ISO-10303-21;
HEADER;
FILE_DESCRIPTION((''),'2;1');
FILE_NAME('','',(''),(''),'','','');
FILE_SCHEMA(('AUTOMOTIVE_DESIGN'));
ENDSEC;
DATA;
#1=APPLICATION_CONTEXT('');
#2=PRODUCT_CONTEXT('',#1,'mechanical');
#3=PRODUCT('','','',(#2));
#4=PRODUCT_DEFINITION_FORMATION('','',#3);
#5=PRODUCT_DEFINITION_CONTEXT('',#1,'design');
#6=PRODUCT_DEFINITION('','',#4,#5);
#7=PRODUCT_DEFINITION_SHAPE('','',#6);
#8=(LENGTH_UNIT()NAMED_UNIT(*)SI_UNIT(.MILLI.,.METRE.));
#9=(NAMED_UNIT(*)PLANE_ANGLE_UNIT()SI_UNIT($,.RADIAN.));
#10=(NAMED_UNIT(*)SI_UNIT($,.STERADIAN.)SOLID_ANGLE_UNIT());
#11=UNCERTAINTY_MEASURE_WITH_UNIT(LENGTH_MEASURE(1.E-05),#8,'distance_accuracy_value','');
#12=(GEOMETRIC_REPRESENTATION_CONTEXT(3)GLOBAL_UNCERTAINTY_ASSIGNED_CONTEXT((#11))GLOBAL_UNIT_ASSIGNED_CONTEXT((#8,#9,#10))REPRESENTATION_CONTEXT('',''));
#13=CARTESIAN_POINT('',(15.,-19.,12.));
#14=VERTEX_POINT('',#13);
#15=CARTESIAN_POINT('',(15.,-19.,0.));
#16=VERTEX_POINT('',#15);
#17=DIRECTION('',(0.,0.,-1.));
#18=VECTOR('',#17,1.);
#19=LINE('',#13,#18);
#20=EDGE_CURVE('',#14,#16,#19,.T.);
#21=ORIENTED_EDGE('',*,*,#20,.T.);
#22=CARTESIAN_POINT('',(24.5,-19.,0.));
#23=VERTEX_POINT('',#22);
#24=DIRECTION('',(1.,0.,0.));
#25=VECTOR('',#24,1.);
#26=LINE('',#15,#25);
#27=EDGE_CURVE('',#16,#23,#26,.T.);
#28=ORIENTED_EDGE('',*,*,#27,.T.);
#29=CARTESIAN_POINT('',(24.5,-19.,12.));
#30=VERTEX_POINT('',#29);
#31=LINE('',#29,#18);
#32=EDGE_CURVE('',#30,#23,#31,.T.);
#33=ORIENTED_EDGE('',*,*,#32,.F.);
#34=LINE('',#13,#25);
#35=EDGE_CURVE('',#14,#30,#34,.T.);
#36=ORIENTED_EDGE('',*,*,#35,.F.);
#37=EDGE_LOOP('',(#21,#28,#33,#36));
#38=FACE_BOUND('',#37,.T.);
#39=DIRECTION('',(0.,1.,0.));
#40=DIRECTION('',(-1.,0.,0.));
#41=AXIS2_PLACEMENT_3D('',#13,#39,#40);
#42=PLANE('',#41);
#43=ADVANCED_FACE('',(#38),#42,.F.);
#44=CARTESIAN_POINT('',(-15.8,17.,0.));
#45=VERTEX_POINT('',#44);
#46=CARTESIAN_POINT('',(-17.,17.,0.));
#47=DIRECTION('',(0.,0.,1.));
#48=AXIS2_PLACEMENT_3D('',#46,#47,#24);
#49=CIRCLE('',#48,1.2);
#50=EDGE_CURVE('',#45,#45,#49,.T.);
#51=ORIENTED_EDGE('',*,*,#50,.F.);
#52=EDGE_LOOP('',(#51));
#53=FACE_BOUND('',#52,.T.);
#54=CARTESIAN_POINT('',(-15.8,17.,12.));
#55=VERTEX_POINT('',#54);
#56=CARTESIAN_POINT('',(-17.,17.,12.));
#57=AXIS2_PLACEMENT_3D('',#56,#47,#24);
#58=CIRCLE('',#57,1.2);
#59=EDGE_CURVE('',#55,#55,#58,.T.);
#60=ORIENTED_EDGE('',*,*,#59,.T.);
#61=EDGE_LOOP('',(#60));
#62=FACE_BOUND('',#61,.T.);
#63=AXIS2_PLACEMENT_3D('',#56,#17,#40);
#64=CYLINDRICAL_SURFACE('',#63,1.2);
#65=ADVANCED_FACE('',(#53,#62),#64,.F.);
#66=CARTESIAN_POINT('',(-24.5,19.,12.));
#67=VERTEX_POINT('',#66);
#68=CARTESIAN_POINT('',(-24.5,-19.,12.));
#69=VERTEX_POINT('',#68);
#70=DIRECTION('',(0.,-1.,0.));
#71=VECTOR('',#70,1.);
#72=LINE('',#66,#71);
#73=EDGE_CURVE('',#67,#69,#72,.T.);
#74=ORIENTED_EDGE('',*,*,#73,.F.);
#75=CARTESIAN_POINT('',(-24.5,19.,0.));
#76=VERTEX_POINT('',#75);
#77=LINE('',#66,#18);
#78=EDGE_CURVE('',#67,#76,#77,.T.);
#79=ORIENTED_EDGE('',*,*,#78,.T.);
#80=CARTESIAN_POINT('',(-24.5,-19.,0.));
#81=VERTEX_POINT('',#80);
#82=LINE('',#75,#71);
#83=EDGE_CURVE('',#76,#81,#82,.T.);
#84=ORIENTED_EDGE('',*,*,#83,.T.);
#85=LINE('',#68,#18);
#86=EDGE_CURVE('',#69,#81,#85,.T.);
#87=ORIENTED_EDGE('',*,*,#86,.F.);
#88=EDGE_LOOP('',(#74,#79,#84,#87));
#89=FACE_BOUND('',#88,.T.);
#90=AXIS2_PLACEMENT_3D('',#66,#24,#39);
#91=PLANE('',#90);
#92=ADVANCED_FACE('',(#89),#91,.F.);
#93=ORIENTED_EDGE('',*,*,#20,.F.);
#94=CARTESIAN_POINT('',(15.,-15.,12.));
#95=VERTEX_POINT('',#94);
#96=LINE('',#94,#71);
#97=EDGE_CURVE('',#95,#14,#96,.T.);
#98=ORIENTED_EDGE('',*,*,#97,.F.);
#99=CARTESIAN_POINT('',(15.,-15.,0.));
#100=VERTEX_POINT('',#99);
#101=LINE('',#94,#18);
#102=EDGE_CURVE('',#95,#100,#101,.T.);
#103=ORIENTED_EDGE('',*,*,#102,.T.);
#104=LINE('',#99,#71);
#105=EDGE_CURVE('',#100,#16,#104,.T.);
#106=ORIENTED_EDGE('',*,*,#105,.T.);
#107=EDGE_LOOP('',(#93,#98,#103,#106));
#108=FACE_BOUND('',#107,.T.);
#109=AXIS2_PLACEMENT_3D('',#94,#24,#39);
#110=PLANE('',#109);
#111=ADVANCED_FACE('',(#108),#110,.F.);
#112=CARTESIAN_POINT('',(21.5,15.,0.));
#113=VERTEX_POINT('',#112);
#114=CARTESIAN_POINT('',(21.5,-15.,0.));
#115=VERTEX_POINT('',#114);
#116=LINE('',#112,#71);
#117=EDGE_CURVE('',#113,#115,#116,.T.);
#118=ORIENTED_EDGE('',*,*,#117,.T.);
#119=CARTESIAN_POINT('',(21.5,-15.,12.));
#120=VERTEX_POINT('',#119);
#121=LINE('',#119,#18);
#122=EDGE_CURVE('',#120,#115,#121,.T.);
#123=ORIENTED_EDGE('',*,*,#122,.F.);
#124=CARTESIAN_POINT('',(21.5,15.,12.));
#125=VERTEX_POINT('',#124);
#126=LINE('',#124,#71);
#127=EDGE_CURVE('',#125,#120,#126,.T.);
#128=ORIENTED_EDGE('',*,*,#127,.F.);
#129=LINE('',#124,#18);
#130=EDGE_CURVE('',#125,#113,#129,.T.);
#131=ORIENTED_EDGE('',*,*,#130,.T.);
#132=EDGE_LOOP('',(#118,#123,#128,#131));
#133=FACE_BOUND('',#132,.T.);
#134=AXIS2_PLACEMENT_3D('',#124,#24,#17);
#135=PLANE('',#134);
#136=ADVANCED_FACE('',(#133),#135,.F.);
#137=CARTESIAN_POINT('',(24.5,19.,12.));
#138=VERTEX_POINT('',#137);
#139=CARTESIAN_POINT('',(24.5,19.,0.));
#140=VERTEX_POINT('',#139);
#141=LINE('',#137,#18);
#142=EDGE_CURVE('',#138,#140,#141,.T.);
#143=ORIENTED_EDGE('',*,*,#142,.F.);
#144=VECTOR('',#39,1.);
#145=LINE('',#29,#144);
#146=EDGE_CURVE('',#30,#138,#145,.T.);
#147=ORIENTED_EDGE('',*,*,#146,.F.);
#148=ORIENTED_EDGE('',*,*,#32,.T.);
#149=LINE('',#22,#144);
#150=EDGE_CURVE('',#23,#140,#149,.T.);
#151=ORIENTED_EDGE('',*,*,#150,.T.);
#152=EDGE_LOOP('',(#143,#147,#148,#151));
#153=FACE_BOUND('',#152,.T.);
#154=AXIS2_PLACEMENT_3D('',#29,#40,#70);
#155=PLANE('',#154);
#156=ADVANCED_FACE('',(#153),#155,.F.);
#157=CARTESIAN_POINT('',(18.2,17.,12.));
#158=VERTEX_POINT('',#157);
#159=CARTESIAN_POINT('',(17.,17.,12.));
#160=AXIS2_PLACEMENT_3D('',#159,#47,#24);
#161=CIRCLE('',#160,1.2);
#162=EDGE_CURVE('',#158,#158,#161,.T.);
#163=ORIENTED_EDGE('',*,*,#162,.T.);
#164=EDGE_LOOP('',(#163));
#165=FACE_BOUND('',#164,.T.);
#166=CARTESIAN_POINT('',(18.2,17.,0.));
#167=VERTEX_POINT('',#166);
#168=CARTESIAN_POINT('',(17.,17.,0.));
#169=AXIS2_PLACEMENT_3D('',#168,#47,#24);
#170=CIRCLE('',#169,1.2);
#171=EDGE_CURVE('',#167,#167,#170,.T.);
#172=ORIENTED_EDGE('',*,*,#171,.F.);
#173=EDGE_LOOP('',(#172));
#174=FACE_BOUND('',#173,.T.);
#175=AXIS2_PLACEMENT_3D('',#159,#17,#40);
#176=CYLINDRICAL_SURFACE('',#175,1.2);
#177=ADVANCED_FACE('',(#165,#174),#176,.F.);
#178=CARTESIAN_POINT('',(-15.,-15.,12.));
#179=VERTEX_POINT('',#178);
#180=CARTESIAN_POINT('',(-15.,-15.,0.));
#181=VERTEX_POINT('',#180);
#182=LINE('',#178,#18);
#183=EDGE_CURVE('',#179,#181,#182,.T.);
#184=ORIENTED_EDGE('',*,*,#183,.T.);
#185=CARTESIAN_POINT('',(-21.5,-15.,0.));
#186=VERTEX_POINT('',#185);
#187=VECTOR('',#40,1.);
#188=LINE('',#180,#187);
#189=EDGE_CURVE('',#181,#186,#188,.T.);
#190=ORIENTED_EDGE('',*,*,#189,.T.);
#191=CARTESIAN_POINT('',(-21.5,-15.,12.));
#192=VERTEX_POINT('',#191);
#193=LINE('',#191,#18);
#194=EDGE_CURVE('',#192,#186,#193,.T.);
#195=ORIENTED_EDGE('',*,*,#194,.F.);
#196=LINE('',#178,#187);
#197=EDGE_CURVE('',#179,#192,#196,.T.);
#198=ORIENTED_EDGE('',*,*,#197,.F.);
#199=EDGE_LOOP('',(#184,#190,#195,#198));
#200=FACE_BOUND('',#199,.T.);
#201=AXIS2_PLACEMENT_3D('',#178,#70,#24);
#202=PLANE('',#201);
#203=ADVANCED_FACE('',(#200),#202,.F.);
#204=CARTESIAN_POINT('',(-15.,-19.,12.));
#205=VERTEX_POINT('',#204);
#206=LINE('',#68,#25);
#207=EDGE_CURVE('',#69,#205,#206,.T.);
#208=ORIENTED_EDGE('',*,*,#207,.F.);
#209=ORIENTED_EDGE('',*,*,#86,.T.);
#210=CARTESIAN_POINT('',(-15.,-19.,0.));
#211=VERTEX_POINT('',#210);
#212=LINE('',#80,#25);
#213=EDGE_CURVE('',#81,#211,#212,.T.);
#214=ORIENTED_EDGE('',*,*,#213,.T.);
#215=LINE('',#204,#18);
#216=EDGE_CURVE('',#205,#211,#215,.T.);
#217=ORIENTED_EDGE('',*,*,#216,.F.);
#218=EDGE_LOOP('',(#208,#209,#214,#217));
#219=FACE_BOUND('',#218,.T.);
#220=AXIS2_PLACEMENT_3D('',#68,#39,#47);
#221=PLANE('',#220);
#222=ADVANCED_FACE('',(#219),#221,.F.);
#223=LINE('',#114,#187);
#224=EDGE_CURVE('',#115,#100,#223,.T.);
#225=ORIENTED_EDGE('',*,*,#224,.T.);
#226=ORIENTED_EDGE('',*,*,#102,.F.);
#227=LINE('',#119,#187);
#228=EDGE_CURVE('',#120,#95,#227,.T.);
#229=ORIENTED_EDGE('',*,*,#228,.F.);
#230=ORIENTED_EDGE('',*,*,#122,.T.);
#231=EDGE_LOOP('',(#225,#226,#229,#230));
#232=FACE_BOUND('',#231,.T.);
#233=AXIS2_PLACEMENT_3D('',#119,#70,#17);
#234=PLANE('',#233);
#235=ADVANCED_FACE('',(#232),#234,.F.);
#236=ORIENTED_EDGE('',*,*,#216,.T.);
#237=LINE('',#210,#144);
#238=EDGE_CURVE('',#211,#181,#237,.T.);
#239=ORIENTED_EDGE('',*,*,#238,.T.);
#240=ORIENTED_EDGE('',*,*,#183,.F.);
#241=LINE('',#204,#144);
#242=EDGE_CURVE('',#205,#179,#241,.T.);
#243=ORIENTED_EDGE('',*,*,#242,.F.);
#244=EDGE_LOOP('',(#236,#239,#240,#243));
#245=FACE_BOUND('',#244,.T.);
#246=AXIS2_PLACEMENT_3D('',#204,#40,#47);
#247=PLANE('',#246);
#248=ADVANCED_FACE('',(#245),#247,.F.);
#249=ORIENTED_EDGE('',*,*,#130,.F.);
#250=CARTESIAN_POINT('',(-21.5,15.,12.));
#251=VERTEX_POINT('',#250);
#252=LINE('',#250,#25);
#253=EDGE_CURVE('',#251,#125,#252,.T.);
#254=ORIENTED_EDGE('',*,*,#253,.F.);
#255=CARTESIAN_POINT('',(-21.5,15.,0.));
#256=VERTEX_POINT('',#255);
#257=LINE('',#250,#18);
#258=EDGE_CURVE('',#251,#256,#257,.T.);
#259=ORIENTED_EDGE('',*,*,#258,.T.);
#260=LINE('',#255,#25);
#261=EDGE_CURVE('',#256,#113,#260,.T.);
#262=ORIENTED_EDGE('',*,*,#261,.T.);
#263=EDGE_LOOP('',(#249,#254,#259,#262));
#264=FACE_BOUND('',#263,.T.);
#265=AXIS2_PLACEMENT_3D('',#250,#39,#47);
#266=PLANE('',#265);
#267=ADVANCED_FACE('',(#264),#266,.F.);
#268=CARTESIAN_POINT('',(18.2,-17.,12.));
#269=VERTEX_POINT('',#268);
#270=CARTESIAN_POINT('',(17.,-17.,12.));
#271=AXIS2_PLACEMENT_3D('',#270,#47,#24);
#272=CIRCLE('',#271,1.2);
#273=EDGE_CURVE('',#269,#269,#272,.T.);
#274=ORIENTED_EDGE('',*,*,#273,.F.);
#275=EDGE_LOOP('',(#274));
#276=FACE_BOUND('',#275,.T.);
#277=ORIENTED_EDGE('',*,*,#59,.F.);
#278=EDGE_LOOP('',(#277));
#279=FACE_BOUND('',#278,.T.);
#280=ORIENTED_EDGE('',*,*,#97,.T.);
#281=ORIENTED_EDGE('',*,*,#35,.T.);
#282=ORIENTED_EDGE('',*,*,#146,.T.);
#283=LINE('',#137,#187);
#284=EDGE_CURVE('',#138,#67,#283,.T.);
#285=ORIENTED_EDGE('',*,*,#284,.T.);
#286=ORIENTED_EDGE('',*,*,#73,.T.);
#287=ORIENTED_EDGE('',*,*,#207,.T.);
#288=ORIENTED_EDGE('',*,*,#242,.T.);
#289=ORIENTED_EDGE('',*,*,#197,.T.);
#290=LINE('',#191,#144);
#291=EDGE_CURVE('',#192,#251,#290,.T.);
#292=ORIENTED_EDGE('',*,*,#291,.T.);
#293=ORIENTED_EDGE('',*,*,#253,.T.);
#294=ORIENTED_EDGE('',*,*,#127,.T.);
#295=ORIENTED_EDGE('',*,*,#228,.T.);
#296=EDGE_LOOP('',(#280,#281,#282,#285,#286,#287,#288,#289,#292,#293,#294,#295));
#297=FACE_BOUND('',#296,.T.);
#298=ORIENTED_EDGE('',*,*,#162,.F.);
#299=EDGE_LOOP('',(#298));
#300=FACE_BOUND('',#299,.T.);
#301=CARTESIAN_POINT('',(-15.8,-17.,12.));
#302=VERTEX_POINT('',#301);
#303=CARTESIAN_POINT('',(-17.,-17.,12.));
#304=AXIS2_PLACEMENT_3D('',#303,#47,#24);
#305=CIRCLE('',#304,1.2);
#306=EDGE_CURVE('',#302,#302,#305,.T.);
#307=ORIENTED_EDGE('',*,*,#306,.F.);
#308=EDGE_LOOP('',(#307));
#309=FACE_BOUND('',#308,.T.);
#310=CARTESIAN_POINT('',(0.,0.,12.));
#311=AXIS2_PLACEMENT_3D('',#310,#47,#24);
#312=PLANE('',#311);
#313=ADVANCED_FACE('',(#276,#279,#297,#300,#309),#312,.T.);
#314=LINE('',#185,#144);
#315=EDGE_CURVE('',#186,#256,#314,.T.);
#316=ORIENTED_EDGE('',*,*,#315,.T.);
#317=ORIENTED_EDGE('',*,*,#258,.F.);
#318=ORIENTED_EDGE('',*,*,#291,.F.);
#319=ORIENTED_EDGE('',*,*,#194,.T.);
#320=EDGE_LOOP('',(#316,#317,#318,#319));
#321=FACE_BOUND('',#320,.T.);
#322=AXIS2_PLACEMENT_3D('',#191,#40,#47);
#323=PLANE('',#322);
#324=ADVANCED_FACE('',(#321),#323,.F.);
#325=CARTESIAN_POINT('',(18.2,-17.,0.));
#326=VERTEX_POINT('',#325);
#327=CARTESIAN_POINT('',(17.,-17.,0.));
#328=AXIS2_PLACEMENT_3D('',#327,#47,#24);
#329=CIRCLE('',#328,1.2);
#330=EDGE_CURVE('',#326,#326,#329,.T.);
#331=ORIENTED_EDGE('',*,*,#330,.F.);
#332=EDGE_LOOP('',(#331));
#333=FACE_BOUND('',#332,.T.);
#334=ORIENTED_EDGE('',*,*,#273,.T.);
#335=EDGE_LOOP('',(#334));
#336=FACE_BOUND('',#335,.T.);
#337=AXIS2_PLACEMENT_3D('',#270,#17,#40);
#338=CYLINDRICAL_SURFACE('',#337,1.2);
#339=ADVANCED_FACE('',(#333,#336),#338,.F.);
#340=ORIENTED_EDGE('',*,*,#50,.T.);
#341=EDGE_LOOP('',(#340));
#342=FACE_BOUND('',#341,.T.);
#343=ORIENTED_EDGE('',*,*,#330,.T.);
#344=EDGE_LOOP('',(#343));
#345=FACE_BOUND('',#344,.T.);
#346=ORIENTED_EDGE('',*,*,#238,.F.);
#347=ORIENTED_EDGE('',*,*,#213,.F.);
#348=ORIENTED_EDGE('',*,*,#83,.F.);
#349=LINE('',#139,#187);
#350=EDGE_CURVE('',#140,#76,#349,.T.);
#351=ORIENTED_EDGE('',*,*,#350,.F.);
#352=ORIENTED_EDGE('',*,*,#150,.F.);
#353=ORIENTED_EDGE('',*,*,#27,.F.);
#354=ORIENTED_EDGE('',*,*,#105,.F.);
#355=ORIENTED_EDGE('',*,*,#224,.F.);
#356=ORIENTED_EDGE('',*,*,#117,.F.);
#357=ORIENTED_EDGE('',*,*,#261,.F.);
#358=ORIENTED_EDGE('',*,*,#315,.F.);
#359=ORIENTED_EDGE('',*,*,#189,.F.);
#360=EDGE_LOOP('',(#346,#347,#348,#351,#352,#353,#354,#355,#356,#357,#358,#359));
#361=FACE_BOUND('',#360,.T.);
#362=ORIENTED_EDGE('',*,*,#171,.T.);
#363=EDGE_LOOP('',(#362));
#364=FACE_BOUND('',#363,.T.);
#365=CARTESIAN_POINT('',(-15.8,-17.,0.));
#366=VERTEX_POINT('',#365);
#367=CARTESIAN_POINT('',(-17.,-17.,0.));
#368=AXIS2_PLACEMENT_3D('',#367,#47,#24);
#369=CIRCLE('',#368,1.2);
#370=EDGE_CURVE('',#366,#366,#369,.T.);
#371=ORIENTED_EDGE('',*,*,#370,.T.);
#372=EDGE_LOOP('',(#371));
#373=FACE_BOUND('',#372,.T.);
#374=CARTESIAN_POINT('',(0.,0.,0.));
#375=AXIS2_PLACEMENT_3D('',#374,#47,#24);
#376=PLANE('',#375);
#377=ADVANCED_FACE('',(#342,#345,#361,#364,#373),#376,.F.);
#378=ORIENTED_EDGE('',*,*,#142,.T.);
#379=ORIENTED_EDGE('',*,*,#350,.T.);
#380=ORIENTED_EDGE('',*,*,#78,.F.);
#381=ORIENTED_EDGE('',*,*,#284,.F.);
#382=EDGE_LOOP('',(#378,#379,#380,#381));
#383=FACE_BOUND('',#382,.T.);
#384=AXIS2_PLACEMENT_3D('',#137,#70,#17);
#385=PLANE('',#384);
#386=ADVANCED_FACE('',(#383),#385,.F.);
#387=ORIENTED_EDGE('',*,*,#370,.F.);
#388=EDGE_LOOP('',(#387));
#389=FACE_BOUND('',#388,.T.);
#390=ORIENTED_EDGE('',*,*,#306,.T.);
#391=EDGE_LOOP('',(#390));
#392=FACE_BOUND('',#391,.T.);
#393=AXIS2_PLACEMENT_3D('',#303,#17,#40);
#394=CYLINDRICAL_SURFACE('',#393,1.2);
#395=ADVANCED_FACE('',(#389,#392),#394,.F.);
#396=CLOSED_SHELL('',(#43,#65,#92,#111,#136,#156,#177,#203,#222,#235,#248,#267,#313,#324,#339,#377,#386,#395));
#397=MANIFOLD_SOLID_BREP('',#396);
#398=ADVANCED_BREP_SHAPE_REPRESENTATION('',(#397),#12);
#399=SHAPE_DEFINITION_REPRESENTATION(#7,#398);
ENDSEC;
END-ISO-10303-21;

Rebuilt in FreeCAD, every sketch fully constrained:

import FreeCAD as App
import Part
import Sketcher


def add_polygon(sketch, points):
    """Adds a closed chain of lines whose ends are joined by coincident constraints."""
    first, n = sketch.GeometryCount, len(points)
    for a, b in zip(points, points[1:] + points[:1]):
        sketch.addGeometry(Part.LineSegment(App.Vector(*a, 0), App.Vector(*b, 0)), False)
    for i in range(n):
        sketch.addConstraint(Sketcher.Constraint("Coincident", first + i, 2, first + (i + 1) % n, 1))

doc = App.newDocument("Part")
body = doc.addObject("PartDesign::Body", "Body")

# Sketch on XY plane
sketch1 = body.newObject("Sketcher::SketchObject", "Sketch")
sketch1.AttachmentSupport = (doc.getObject("XY_Plane"), [""])
sketch1.MapMode = "FlatFace"
add_polygon(sketch1, [(-15, -19), (-15, -15), (-21.5, -15), (-21.5, 15), (21.5, 15), (21.5, -15), (15, -15), (15, -19), (24.5, -19), (24.5, 19), (-24.5, 19), (-24.5, -19)])  # lines 0-11
sketch1.addGeometry(Part.Circle(App.Vector(-17, -17, 0), App.Vector(0, 0, 1), 1.2), False)  # 12
sketch1.addGeometry(Part.Circle(App.Vector(17, -17, 0), App.Vector(0, 0, 1), 1.2), False)  # 13
sketch1.addGeometry(Part.Circle(App.Vector(-17, 17, 0), App.Vector(0, 0, 1), 1.2), False)  # 14
sketch1.addGeometry(Part.Circle(App.Vector(17, 17, 0), App.Vector(0, 0, 1), 1.2), False)  # 15
sketch1.addConstraint(Sketcher.Constraint("Vertical", 0))
sketch1.addConstraint(Sketcher.Constraint("Horizontal", 1))
sketch1.addConstraint(Sketcher.Constraint("Vertical", 2))
sketch1.addConstraint(Sketcher.Constraint("Horizontal", 3))
sketch1.addConstraint(Sketcher.Constraint("Vertical", 4))
sketch1.addConstraint(Sketcher.Constraint("Horizontal", 5))
sketch1.addConstraint(Sketcher.Constraint("Vertical", 6))
sketch1.addConstraint(Sketcher.Constraint("Horizontal", 7))
sketch1.addConstraint(Sketcher.Constraint("Vertical", 8))
sketch1.addConstraint(Sketcher.Constraint("Horizontal", 9))
sketch1.addConstraint(Sketcher.Constraint("Vertical", 10))
sketch1.addConstraint(Sketcher.Constraint("Horizontal", 11))
sketch1.addConstraint(Sketcher.Constraint("Equal", 12, 13))
sketch1.addConstraint(Sketcher.Constraint("Equal", 13, 14))
sketch1.addConstraint(Sketcher.Constraint("Equal", 14, 15))
sketch1.addConstraint(Sketcher.Constraint("Symmetric", 13, 3, 14, 3, -1, 1))
sketch1.addConstraint(Sketcher.Constraint("Symmetric", 12, 3, 15, 3, -1, 1))
sketch1.addConstraint(Sketcher.Constraint("Symmetric", 1, 2, 3, 2, -1, 1))
sketch1.addConstraint(Sketcher.Constraint("Symmetric", 7, 2, 9, 2, -1, 1))
sketch1.addConstraint(Sketcher.Constraint("Symmetric", 12, 3, 13, 3, -2))
sketch1.addConstraint(Sketcher.Constraint("Symmetric", 0, 2, 5, 2, -2))
sketch1.addConstraint(Sketcher.Constraint("Horizontal", 7, 2, 10, 2))
sketch1.addConstraint(Sketcher.Constraint("Diameter", 12, 2.4))
sketch1.addConstraint(Sketcher.Constraint("DistanceX", 3, 1, 3, 2, 43.0))
sketch1.addConstraint(Sketcher.Constraint("DistanceX", 9, 2, 9, 1, 49.0))
sketch1.addConstraint(Sketcher.Constraint("DistanceY", 0, 1, 0, 2, 4.0))
sketch1.addConstraint(Sketcher.Constraint("DistanceY", 2, 1, 2, 2, 30.0))
sketch1.addConstraint(Sketcher.Constraint("DistanceX", 1, 2, 1, 1, 6.5))
sketch1.addConstraint(Sketcher.Constraint("DistanceX", 12, 3, -1, 1, 17.0))
sketch1.addConstraint(Sketcher.Constraint("DistanceY", 12, 3, -1, 1, 17.0))
pad1 = body.newObject("PartDesign::Pad", "Pad")
pad1.Profile = sketch1
pad1.Length = 12

doc.recompute()
